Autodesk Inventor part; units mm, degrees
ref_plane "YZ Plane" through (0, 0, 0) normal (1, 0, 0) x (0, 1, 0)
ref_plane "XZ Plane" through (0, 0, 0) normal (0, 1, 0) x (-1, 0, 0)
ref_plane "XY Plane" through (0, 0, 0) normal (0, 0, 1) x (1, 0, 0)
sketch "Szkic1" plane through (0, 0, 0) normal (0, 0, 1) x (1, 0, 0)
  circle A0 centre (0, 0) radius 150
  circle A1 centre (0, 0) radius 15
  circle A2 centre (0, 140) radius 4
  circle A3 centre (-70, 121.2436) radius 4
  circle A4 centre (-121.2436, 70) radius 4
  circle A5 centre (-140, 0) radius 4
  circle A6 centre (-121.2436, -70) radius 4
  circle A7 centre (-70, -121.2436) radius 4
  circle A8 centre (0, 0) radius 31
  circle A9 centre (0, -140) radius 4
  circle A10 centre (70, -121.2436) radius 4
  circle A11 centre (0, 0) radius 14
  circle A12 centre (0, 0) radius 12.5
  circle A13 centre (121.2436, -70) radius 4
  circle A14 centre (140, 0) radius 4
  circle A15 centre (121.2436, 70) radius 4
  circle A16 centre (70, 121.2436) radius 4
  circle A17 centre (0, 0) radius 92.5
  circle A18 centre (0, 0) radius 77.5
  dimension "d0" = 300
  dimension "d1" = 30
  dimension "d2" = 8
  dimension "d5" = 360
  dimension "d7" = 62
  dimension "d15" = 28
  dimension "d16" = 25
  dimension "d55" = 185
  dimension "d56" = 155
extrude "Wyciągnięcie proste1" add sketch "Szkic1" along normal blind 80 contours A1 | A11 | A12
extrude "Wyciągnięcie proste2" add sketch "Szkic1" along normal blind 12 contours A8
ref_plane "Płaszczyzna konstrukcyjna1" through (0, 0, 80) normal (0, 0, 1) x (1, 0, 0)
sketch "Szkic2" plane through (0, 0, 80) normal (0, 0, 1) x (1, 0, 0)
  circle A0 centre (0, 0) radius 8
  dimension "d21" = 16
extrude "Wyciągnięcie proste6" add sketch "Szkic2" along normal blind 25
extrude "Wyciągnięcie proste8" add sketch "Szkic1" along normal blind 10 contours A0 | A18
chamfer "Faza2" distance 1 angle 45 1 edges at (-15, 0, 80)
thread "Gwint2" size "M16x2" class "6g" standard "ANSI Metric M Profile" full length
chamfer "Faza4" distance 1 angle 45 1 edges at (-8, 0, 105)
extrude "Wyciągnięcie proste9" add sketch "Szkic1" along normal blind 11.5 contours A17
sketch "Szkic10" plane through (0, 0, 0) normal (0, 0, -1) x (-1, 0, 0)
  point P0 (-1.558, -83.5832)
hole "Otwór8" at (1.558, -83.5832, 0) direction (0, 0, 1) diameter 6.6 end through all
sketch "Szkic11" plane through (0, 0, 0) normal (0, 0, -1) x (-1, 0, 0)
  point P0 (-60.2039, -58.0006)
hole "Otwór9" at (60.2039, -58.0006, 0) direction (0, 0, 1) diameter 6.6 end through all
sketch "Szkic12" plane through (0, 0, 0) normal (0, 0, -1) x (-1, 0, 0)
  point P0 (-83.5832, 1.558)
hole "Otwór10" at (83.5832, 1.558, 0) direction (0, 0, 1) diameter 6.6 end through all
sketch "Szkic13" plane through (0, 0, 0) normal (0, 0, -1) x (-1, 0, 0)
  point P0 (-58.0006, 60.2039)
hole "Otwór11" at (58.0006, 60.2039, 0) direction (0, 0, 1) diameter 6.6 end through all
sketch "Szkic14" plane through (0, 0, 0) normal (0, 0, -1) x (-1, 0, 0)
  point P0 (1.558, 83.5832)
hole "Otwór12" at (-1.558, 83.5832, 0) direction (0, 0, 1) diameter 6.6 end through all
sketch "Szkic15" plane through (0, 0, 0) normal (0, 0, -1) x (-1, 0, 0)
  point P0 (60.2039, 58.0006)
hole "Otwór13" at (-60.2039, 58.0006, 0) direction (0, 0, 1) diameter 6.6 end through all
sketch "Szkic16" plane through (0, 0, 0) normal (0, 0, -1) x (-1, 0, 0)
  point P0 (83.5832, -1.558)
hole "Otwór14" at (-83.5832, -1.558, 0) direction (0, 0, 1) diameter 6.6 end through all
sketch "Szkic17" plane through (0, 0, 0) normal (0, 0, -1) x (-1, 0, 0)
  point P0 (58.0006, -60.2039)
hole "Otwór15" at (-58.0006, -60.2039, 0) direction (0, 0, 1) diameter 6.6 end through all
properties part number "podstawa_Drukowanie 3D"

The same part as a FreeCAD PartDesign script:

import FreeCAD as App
import Part
import Sketcher
Q = App.Units.Quantity


def edges_at(feature, points):
    """Names of the edges that pass closest to the given points."""
    edges = feature.Shape.Edges
    near = lambda p: min(range(len(edges)), key=lambda i: edges[i].distToShape(Part.Vertex(*p))[0])
    return sorted({f"Edge{near(p) + 1}" for p in points})

doc = App.newDocument("Part")
body = doc.addObject("PartDesign::Body", "Body")
body.AllowCompound = True

sketch1 = body.newObject("Sketcher::SketchObject", "Sketch")
sketch1.AttachmentSupport = (doc.getObject("XY_Plane"), [""])
sketch1.MapMode = "FlatFace"
sketch1.addGeometry(Part.Circle(App.Vector(0, 0, 0), App.Vector(0, 0, 1), 15), False)
sketch1.addConstraint([
    Sketcher.Constraint("Coincident", 0, 3, -1, 1),
    Sketcher.Constraint("Diameter", 0, Q("30 mm")),
])
pad1 = body.newObject("PartDesign::Pad", "Pad")
pad1.Profile = sketch1
pad1.Length = 80

sketch2 = body.newObject("Sketcher::SketchObject", "Sketch001")
sketch2.AttachmentSupport = (doc.getObject("XY_Plane"), [""])
sketch2.MapMode = "FlatFace"
sketch2.addGeometry([
    Part.Circle(App.Vector(0, 0, 0), App.Vector(0, 0, 1), 31),
    Part.Circle(App.Vector(0, 0, 0), App.Vector(0, 0, 1), 15),
], False)
sketch2.addConstraint([
    Sketcher.Constraint("Coincident", 0, 3, -1, 1),
    Sketcher.Constraint("Coincident", 1, 3, -1, 1),
    Sketcher.Constraint("Diameter", 0, Q("62 mm")),
    Sketcher.Constraint("Diameter", 1, Q("30 mm")),
])
pad2 = body.newObject("PartDesign::Pad", "Pad001")
pad2.Profile = sketch2
pad2.Length = 12

sketch3 = body.newObject("Sketcher::SketchObject", "Sketch002")
sketch3.AttachmentSupport = (doc.getObject("XY_Plane"), [""])
sketch3.MapMode = "FlatFace"
sketch3.AttachmentOffset = App.Placement(App.Vector(0, 0, 80), App.Rotation())
sketch3.addGeometry(Part.Circle(App.Vector(0, 0, 0), App.Vector(0, 0, 1), 8), False)
sketch3.addConstraint([
    Sketcher.Constraint("Coincident", 0, 3, -1, 1),
    Sketcher.Constraint("Diameter", 0, Q("16 mm")),
])
pad3 = body.newObject("PartDesign::Pad", "Pad002")
pad3.Profile = sketch3
pad3.Length = 25

sketch4 = body.newObject("Sketcher::SketchObject", "Sketch003")
sketch4.AttachmentSupport = (doc.getObject("XY_Plane"), [""])
sketch4.MapMode = "FlatFace"
sketch4.addGeometry([
    Part.Circle(App.Vector(0, 0, 0), App.Vector(0, 0, 1), 150),
    Part.Circle(App.Vector(-70, -121.2, 0), App.Vector(0, 0, 1), 4),
    Part.Circle(App.Vector(-121.2, -70, 0), App.Vector(0, 0, 1), 4),
    Part.Circle(App.Vector(0, -140, 0), App.Vector(0, 0, 1), 4),
    Part.Circle(App.Vector(70, -121.2, 0), App.Vector(0, 0, 1), 4),
    Part.Circle(App.Vector(121.2, -70, 0), App.Vector(0, 0, 1), 4),
    Part.Circle(App.Vector(-140, 0, 0), App.Vector(0, 0, 1), 4),
    Part.Circle(App.Vector(-121.2, 70, 0), App.Vector(0, 0, 1), 4),
    Part.Circle(App.Vector(-70, 121.2, 0), App.Vector(0, 0, 1), 4),
    Part.Circle(App.Vector(0, 0, 0), App.Vector(0, 0, 1), 92.5),
    Part.Circle(App.Vector(140, 0, 0), App.Vector(0, 0, 1), 4),
    Part.Circle(App.Vector(121.2, 70, 0), App.Vector(0, 0, 1), 4),
    Part.Circle(App.Vector(0, 140, 0), App.Vector(0, 0, 1), 4),
    Part.Circle(App.Vector(70, 121.2, 0), App.Vector(0, 0, 1), 4),
    Part.Circle(App.Vector(0, 0, 0), App.Vector(0, 0, 1), 77.5),
    Part.Circle(App.Vector(0, 0, 0), App.Vector(0, 0, 1), 31),
], False)
sketch4.addConstraint([
    Sketcher.Constraint("Coincident", 0, 3, -1, 1),
    Sketcher.Constraint("Coincident", 9, 3, -1, 1),
    Sketcher.Constraint("Coincident", 14, 3, -1, 1),
    Sketcher.Constraint("Coincident", 15, 3, -1, 1),
    Sketcher.Constraint("Equal", 1, 2),
    Sketcher.Constraint("Equal", 2, 3),
    Sketcher.Constraint("Equal", 3, 4),
    Sketcher.Constraint("Equal", 4, 5),
    Sketcher.Constraint("Equal", 5, 6),
    Sketcher.Constraint("Equal", 6, 7),
    Sketcher.Constraint("Equal", 7, 8),
    Sketcher.Constraint("Equal", 8, 10),
    Sketcher.Constraint("Equal", 10, 11),
    Sketcher.Constraint("Equal", 11, 12),
    Sketcher.Constraint("Equal", 12, 13),
    Sketcher.Constraint("Symmetric", 5, 3, 7, 3, -1, 1),
    Sketcher.Constraint("Symmetric", 4, 3, 8, 3, -1, 1),
    Sketcher.Constraint("Symmetric", 6, 3, 10, 3, -1, 1),
    Sketcher.Constraint("Symmetric", 2, 3, 11, 3, -1, 1),
    Sketcher.Constraint("Symmetric", 3, 3, 12, 3, -1, 1),
    Sketcher.Constraint("Symmetric", 1, 3, 13, 3, -1, 1),
    Sketcher.Constraint("Symmetric", 1, 3, 4, 3, -2),
    Sketcher.Constraint("Symmetric", 2, 3, 5, 3, -2),
    Sketcher.Constraint("PointOnObject", 3, 3, -2),
    Sketcher.Constraint("PointOnObject", 6, 3, -1),
    Sketcher.Constraint("Diameter", 0, Q("300 mm")),
    Sketcher.Constraint("Diameter", 1, Q("8 mm")),
    Sketcher.Constraint("Diameter", 9, Q("185 mm")),
    Sketcher.Constraint("Diameter", 14, Q("155 mm")),
    Sketcher.Constraint("Diameter", 15, Q("62 mm")),
    Sketcher.Constraint("DistanceX", 1, 3, -1, 1, Q("70 mm")),
    Sketcher.Constraint("DistanceY", 2, 3, -1, 1, Q("70 mm")),
    Sketcher.Constraint("DistanceY", 3, 3, -1, 1, Q("140 mm")),
    Sketcher.Constraint("DistanceX", 6, 3, -1, 1, Q("140 mm")),
    Sketcher.Constraint("DistanceY", 1, 3, -1, 1, Q("121.2436 mm")),
    Sketcher.Constraint("DistanceX", 2, 3, -1, 1, Q("121.2436 mm")),
])
pad4 = body.newObject("PartDesign::Pad", "Pad003")
pad4.Profile = sketch4
pad4.Length = 10
doc.recompute()

chamfer = body.newObject("PartDesign::Chamfer", "Chamfer")
chamfer.Base = (pad4, edges_at(pad4, [(-15, 0, 80)]))
chamfer.Size = 1
doc.recompute()

chamfer2 = body.newObject("PartDesign::Chamfer", "Chamfer001")
chamfer2.Base = (chamfer, edges_at(chamfer, [(-8, 0, 105)]))
chamfer2.Size = 1

sketch5 = body.newObject("Sketcher::SketchObject", "Sketch004")
sketch5.AttachmentSupport = (doc.getObject("XY_Plane"), [""])
sketch5.MapMode = "FlatFace"
sketch5.addGeometry([
    Part.Circle(App.Vector(0, 0, 0), App.Vector(0, 0, 1), 92),
    Part.Circle(App.Vector(0, 0, 0), App.Vector(0, 0, 1), 78),
], False)
sketch5.addConstraint([
    Sketcher.Constraint("Coincident", 0, 3, -1, 1),
    Sketcher.Constraint("Coincident", 1, 3, -1, 1),
    Sketcher.Constraint("Diameter", 0, Q("185 mm")),
    Sketcher.Constraint("Diameter", 1, Q("155 mm")),
])
pad5 = body.newObject("PartDesign::Pad", "Pad004")
pad5.Profile = sketch5
pad5.Length = 11.5

sketch6 = body.newObject("Sketcher::SketchObject", "Sketch005")
sketch6.AttachmentSupport = (doc.getObject("XY_Plane"), [""])
sketch6.MapMode = "FlatFace"
sketch6.addGeometry(Part.Circle(App.Vector(1.6, -83.6, 0), App.Vector(0, 0, 1), 3.3), False)
sketch6.addConstraint([
    Sketcher.Constraint("Diameter", 0, Q("6.6 mm")),
    Sketcher.Constraint("DistanceX", -1, 1, 0, 3, Q("1.558 mm")),
    Sketcher.Constraint("DistanceY", 0, 3, -1, 1, Q("83.5832 mm")),
])
doc.recompute()
hole = body.newObject("PartDesign::Hole", "Hole")
hole.Profile = sketch6
hole.ThreadType = "None"
hole.Diameter = 6.6
hole.DepthType = "ThroughAll"
hole.Reversed = True

sketch7 = body.newObject("Sketcher::SketchObject", "Sketch006")
sketch7.AttachmentSupport = (doc.getObject("XY_Plane"), [""])
sketch7.MapMode = "FlatFace"
sketch7.addGeometry(Part.Circle(App.Vector(60.2, -58, 0), App.Vector(0, 0, 1), 3.3), False)
sketch7.addConstraint([
    Sketcher.Constraint("Diameter", 0, Q("6.6 mm")),
    Sketcher.Constraint("DistanceX", -1, 1, 0, 3, Q("60.204 mm")),
    Sketcher.Constraint("DistanceY", 0, 3, -1, 1, Q("58.0006 mm")),
])
doc.recompute()
hole2 = body.newObject("PartDesign::Hole", "Hole001")
hole2.Profile = sketch7
hole2.ThreadType = "None"
hole2.Diameter = 6.6
hole2.DepthType = "ThroughAll"
hole2.Reversed = True

sketch8 = body.newObject("Sketcher::SketchObject", "Sketch007")
sketch8.AttachmentSupport = (doc.getObject("XY_Plane"), [""])
sketch8.MapMode = "FlatFace"
sketch8.addGeometry(Part.Circle(App.Vector(83.6, 1.6, 0), App.Vector(0, 0, 1), 3.3), False)
sketch8.addConstraint([
    Sketcher.Constraint("Diameter", 0, Q("6.6 mm")),
    Sketcher.Constraint("DistanceY", -1, 1, 0, 3, Q("1.558 mm")),
    Sketcher.Constraint("DistanceX", -1, 1, 0, 3, Q("83.5832 mm")),
])
doc.recompute()
hole3 = body.newObject("PartDesign::Hole", "Hole002")
hole3.Profile = sketch8
hole3.ThreadType = "None"
hole3.Diameter = 6.6
hole3.DepthType = "ThroughAll"
hole3.Reversed = True

sketch9 = body.newObject("Sketcher::SketchObject", "Sketch008")
sketch9.AttachmentSupport = (doc.getObject("XY_Plane"), [""])
sketch9.MapMode = "FlatFace"
sketch9.addGeometry(Part.Circle(App.Vector(58, 60.2, 0), App.Vector(0, 0, 1), 3.3), False)
sketch9.addConstraint([
    Sketcher.Constraint("Diameter", 0, Q("6.6 mm")),
    Sketcher.Constraint("DistanceY", -1, 1, 0, 3, Q("60.204 mm")),
    Sketcher.Constraint("DistanceX", -1, 1, 0, 3, Q("58.0006 mm")),
])
doc.recompute()
hole4 = body.newObject("PartDesign::Hole", "Hole003")
hole4.Profile = sketch9
hole4.ThreadType = "None"
hole4.Diameter = 6.6
hole4.DepthType = "ThroughAll"
hole4.Reversed = True

sketch10 = body.newObject("Sketcher::SketchObject", "Sketch009")
sketch10.AttachmentSupport = (doc.getObject("XY_Plane"), [""])
sketch10.MapMode = "FlatFace"
sketch10.addGeometry(Part.Circle(App.Vector(-1.6, 83.6, 0), App.Vector(0, 0, 1), 3.3), False)
sketch10.addConstraint([
    Sketcher.Constraint("Diameter", 0, Q("6.6 mm")),
    Sketcher.Constraint("DistanceX", 0, 3, -1, 1, Q("1.558 mm")),
    Sketcher.Constraint("DistanceY", -1, 1, 0, 3, Q("83.5832 mm")),
])
doc.recompute()
hole5 = body.newObject("PartDesign::Hole", "Hole004")
hole5.Profile = sketch10
hole5.ThreadType = "None"
hole5.Diameter = 6.6
hole5.DepthType = "ThroughAll"
hole5.Reversed = True

sketch11 = body.newObject("Sketcher::SketchObject", "Sketch010")
sketch11.AttachmentSupport = (doc.getObject("XY_Plane"), [""])
sketch11.MapMode = "FlatFace"
sketch11.addGeometry(Part.Circle(App.Vector(-60.2, 58, 0), App.Vector(0, 0, 1), 3.3), False)
sketch11.addConstraint([
    Sketcher.Constraint("Diameter", 0, Q("6.6 mm")),
    Sketcher.Constraint("DistanceX", 0, 3, -1, 1, Q("60.204 mm")),
    Sketcher.Constraint("DistanceY", -1, 1, 0, 3, Q("58.0006 mm")),
])
doc.recompute()
hole6 = body.newObject("PartDesign::Hole", "Hole005")
hole6.Profile = sketch11
hole6.ThreadType = "None"
hole6.Diameter = 6.6
hole6.DepthType = "ThroughAll"
hole6.Reversed = True

sketch12 = body.newObject("Sketcher::SketchObject", "Sketch011")
sketch12.AttachmentSupport = (doc.getObject("XY_Plane"), [""])
sketch12.MapMode = "FlatFace"
sketch12.addGeometry(Part.Circle(App.Vector(-83.6, -1.6, 0), App.Vector(0, 0, 1), 3.3), False)
sketch12.addConstraint([
    Sketcher.Constraint("Diameter", 0, Q("6.6 mm")),
    Sketcher.Constraint("DistanceY", 0, 3, -1, 1, Q("1.558 mm")),
    Sketcher.Constraint("DistanceX", 0, 3, -1, 1, Q("83.5832 mm")),
])
doc.recompute()
hole7 = body.newObject("PartDesign::Hole", "Hole006")
hole7.Profile = sketch12
hole7.ThreadType = "None"
hole7.Diameter = 6.6
hole7.DepthType = "ThroughAll"
hole7.Reversed = True

sketch13 = body.newObject("Sketcher::SketchObject", "Sketch012")
sketch13.AttachmentSupport = (doc.getObject("XY_Plane"), [""])
sketch13.MapMode = "FlatFace"
sketch13.addGeometry(Part.Circle(App.Vector(-58, -60.2, 0), App.Vector(0, 0, 1), 3.3), False)
sketch13.addConstraint([
    Sketcher.Constraint("Diameter", 0, Q("6.6 mm")),
    Sketcher.Constraint("DistanceY", 0, 3, -1, 1, Q("60.204 mm")),
    Sketcher.Constraint("DistanceX", 0, 3, -1, 1, Q("58.0006 mm")),
])
doc.recompute()
hole8 = body.newObject("PartDesign::Hole", "Hole007")
hole8.Profile = sketch13
hole8.ThreadType = "None"
hole8.Diameter = 6.6
hole8.DepthType = "ThroughAll"
hole8.Reversed = True

doc.recompute()
